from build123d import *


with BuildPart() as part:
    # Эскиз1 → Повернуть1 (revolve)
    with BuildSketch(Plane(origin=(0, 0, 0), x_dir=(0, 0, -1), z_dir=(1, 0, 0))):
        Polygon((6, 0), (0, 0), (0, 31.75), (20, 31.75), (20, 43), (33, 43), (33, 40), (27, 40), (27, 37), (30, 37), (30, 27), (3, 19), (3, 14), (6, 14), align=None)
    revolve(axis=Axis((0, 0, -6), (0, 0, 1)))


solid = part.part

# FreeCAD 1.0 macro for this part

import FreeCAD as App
import Part
import Sketcher
Q = App.Units.Quantity

doc = App.newDocument("Part")
body = doc.addObject("PartDesign::Body", "Body")

sketch1 = doc.addObject("Sketcher::SketchObject", "Sketch")
body.addObject(sketch1)
sketch1.AttachmentSupport = (doc.YZ_Plane, [""])
sketch1.MapMode = "FlatFace"
sketch1.addGeometry(Part.LineSegment(App.Vector(0, 0, 0), App.Vector(0, -6, 0)), False)
sketch1.addGeometry(Part.LineSegment(App.Vector(0, -6, 0), App.Vector(14, -6, 0)), False)
sketch1.addGeometry(Part.LineSegment(App.Vector(14, -6, 0), App.Vector(14, -3, 0)), False)
sketch1.addGeometry(Part.LineSegment(App.Vector(14, -3, 0), App.Vector(19, -3, 0)), False)
sketch1.addGeometry(Part.LineSegment(App.Vector(19, -3, 0), App.Vector(27, -30, 0)), False)
sketch1.addGeometry(Part.LineSegment(App.Vector(27, -30, 0), App.Vector(37, -30, 0)), False)
sketch1.addGeometry(Part.LineSegment(App.Vector(37, -30, 0), App.Vector(37, -27, 0)), False)
sketch1.addGeometry(Part.LineSegment(App.Vector(37, -27, 0), App.Vector(40, -27, 0)), False)
sketch1.addGeometry(Part.LineSegment(App.Vector(40, -27, 0), App.Vector(40, -33, 0)), False)
sketch1.addGeometry(Part.LineSegment(App.Vector(40, -33, 0), App.Vector(43, -33, 0)), False)
sketch1.addGeometry(Part.LineSegment(App.Vector(43, -33, 0), App.Vector(43, -20, 0)), False)
sketch1.addGeometry(Part.LineSegment(App.Vector(43, -20, 0), App.Vector(31.75, -20, 0)), False)
sketch1.addGeometry(Part.LineSegment(App.Vector(31.75, -20, 0), App.Vector(31.75, 0, 0)), False)
sketch1.addGeometry(Part.LineSegment(App.Vector(31.75, 0, 0), App.Vector(0, 0, 0)), False)
sketch1.addConstraint(Sketcher.Constraint("Coincident", 0, 2, 1, 1))
sketch1.addConstraint(Sketcher.Constraint("Coincident", 1, 2, 2, 1))
sketch1.addConstraint(Sketcher.Constraint("Coincident", 2, 2, 3, 1))
sketch1.addConstraint(Sketcher.Constraint("Coincident", 3, 2, 4, 1))
sketch1.addConstraint(Sketcher.Constraint("Coincident", 4, 2, 5, 1))
sketch1.addConstraint(Sketcher.Constraint("Coincident", 5, 2, 6, 1))
sketch1.addConstraint(Sketcher.Constraint("Coincident", 6, 2, 7, 1))
sketch1.addConstraint(Sketcher.Constraint("Coincident", 7, 2, 8, 1))
sketch1.addConstraint(Sketcher.Constraint("Coincident", 8, 2, 9, 1))
sketch1.addConstraint(Sketcher.Constraint("Coincident", 9, 2, 10, 1))
sketch1.addConstraint(Sketcher.Constraint("Coincident", 10, 2, 11, 1))
sketch1.addConstraint(Sketcher.Constraint("Coincident", 11, 2, 12, 1))
sketch1.addConstraint(Sketcher.Constraint("Coincident", 12, 2, 13, 1))
sketch1.addConstraint(Sketcher.Constraint("Coincident", 13, 2, 0, 1))
sketch1.addConstraint(Sketcher.Constraint("Vertical", 0))
sketch1.addConstraint(Sketcher.Constraint("Horizontal", 1))
sketch1.addConstraint(Sketcher.Constraint("Vertical", 2))
sketch1.addConstraint(Sketcher.Constraint("Horizontal", 3))
sketch1.addConstraint(Sketcher.Constraint("Horizontal", 5))
sketch1.addConstraint(Sketcher.Constraint("Vertical", 6))
sketch1.addConstraint(Sketcher.Constraint("Horizontal", 7))
sketch1.addConstraint(Sketcher.Constraint("Vertical", 8))
sketch1.addConstraint(Sketcher.Constraint("Horizontal", 9))
sketch1.addConstraint(Sketcher.Constraint("Vertical", 10))
sketch1.addConstraint(Sketcher.Constraint("Horizontal", 11))
sketch1.addConstraint(Sketcher.Constraint("Vertical", 12))
sketch1.addConstraint(Sketcher.Constraint("Horizontal", 13))
sketch1.addConstraint(Sketcher.Constraint("Coincident", 13, 2, -1, 1))
sketch1.addConstraint(Sketcher.Constraint("Equal", 7, 9))
sketch1.addConstraint(Sketcher.Constraint("Equal", 9, 2))
sketch1.addConstraint(Sketcher.Constraint("Equal", 2, 6))
sketch1.addConstraint(Sketcher.Constraint("Equal", 0, 8))
sketch1.addConstraint(Sketcher.Constraint("DistanceX", 1, 1, 1, 2, Q("14 mm")))
sketch1.addConstraint(Sketcher.Constraint("DistanceX", 3, 1, 3, 2, Q("5 mm")))
sketch1.addConstraint(Sketcher.Constraint("DistanceX", 5, 1, 5, 2, Q("10 mm")))
sketch1.addConstraint(Sketcher.Constraint("DistanceX", 7, 1, 7, 2, Q("3 mm")))
sketch1.addConstraint(Sketcher.Constraint("DistanceY", 0, 2, 0, 1, Q("6 mm")))
sketch1.addConstraint(Sketcher.Constraint("DistanceY", 10, 1, 10, 2, Q("13 mm")))
sketch1.addConstraint(Sketcher.Constraint("DistanceY", 12, 1, 12, 2, Q("20 mm")))
sketch1.addConstraint(Sketcher.Constraint("DistanceX", -1, 1, 4, 2, Q("27 mm")))
sketch1.addConstraint(Sketcher.Constraint("DistanceX", 11, 2, 11, 1, Q("11.25 mm")))
revolution = doc.addObject("PartDesign::Revolution", "Revolution")
body.addObject(revolution)
revolution.Profile = sketch1
revolution.ReferenceAxis = (sketch1, ["V_Axis"])
revolution.Angle = 360

doc.recompute()
